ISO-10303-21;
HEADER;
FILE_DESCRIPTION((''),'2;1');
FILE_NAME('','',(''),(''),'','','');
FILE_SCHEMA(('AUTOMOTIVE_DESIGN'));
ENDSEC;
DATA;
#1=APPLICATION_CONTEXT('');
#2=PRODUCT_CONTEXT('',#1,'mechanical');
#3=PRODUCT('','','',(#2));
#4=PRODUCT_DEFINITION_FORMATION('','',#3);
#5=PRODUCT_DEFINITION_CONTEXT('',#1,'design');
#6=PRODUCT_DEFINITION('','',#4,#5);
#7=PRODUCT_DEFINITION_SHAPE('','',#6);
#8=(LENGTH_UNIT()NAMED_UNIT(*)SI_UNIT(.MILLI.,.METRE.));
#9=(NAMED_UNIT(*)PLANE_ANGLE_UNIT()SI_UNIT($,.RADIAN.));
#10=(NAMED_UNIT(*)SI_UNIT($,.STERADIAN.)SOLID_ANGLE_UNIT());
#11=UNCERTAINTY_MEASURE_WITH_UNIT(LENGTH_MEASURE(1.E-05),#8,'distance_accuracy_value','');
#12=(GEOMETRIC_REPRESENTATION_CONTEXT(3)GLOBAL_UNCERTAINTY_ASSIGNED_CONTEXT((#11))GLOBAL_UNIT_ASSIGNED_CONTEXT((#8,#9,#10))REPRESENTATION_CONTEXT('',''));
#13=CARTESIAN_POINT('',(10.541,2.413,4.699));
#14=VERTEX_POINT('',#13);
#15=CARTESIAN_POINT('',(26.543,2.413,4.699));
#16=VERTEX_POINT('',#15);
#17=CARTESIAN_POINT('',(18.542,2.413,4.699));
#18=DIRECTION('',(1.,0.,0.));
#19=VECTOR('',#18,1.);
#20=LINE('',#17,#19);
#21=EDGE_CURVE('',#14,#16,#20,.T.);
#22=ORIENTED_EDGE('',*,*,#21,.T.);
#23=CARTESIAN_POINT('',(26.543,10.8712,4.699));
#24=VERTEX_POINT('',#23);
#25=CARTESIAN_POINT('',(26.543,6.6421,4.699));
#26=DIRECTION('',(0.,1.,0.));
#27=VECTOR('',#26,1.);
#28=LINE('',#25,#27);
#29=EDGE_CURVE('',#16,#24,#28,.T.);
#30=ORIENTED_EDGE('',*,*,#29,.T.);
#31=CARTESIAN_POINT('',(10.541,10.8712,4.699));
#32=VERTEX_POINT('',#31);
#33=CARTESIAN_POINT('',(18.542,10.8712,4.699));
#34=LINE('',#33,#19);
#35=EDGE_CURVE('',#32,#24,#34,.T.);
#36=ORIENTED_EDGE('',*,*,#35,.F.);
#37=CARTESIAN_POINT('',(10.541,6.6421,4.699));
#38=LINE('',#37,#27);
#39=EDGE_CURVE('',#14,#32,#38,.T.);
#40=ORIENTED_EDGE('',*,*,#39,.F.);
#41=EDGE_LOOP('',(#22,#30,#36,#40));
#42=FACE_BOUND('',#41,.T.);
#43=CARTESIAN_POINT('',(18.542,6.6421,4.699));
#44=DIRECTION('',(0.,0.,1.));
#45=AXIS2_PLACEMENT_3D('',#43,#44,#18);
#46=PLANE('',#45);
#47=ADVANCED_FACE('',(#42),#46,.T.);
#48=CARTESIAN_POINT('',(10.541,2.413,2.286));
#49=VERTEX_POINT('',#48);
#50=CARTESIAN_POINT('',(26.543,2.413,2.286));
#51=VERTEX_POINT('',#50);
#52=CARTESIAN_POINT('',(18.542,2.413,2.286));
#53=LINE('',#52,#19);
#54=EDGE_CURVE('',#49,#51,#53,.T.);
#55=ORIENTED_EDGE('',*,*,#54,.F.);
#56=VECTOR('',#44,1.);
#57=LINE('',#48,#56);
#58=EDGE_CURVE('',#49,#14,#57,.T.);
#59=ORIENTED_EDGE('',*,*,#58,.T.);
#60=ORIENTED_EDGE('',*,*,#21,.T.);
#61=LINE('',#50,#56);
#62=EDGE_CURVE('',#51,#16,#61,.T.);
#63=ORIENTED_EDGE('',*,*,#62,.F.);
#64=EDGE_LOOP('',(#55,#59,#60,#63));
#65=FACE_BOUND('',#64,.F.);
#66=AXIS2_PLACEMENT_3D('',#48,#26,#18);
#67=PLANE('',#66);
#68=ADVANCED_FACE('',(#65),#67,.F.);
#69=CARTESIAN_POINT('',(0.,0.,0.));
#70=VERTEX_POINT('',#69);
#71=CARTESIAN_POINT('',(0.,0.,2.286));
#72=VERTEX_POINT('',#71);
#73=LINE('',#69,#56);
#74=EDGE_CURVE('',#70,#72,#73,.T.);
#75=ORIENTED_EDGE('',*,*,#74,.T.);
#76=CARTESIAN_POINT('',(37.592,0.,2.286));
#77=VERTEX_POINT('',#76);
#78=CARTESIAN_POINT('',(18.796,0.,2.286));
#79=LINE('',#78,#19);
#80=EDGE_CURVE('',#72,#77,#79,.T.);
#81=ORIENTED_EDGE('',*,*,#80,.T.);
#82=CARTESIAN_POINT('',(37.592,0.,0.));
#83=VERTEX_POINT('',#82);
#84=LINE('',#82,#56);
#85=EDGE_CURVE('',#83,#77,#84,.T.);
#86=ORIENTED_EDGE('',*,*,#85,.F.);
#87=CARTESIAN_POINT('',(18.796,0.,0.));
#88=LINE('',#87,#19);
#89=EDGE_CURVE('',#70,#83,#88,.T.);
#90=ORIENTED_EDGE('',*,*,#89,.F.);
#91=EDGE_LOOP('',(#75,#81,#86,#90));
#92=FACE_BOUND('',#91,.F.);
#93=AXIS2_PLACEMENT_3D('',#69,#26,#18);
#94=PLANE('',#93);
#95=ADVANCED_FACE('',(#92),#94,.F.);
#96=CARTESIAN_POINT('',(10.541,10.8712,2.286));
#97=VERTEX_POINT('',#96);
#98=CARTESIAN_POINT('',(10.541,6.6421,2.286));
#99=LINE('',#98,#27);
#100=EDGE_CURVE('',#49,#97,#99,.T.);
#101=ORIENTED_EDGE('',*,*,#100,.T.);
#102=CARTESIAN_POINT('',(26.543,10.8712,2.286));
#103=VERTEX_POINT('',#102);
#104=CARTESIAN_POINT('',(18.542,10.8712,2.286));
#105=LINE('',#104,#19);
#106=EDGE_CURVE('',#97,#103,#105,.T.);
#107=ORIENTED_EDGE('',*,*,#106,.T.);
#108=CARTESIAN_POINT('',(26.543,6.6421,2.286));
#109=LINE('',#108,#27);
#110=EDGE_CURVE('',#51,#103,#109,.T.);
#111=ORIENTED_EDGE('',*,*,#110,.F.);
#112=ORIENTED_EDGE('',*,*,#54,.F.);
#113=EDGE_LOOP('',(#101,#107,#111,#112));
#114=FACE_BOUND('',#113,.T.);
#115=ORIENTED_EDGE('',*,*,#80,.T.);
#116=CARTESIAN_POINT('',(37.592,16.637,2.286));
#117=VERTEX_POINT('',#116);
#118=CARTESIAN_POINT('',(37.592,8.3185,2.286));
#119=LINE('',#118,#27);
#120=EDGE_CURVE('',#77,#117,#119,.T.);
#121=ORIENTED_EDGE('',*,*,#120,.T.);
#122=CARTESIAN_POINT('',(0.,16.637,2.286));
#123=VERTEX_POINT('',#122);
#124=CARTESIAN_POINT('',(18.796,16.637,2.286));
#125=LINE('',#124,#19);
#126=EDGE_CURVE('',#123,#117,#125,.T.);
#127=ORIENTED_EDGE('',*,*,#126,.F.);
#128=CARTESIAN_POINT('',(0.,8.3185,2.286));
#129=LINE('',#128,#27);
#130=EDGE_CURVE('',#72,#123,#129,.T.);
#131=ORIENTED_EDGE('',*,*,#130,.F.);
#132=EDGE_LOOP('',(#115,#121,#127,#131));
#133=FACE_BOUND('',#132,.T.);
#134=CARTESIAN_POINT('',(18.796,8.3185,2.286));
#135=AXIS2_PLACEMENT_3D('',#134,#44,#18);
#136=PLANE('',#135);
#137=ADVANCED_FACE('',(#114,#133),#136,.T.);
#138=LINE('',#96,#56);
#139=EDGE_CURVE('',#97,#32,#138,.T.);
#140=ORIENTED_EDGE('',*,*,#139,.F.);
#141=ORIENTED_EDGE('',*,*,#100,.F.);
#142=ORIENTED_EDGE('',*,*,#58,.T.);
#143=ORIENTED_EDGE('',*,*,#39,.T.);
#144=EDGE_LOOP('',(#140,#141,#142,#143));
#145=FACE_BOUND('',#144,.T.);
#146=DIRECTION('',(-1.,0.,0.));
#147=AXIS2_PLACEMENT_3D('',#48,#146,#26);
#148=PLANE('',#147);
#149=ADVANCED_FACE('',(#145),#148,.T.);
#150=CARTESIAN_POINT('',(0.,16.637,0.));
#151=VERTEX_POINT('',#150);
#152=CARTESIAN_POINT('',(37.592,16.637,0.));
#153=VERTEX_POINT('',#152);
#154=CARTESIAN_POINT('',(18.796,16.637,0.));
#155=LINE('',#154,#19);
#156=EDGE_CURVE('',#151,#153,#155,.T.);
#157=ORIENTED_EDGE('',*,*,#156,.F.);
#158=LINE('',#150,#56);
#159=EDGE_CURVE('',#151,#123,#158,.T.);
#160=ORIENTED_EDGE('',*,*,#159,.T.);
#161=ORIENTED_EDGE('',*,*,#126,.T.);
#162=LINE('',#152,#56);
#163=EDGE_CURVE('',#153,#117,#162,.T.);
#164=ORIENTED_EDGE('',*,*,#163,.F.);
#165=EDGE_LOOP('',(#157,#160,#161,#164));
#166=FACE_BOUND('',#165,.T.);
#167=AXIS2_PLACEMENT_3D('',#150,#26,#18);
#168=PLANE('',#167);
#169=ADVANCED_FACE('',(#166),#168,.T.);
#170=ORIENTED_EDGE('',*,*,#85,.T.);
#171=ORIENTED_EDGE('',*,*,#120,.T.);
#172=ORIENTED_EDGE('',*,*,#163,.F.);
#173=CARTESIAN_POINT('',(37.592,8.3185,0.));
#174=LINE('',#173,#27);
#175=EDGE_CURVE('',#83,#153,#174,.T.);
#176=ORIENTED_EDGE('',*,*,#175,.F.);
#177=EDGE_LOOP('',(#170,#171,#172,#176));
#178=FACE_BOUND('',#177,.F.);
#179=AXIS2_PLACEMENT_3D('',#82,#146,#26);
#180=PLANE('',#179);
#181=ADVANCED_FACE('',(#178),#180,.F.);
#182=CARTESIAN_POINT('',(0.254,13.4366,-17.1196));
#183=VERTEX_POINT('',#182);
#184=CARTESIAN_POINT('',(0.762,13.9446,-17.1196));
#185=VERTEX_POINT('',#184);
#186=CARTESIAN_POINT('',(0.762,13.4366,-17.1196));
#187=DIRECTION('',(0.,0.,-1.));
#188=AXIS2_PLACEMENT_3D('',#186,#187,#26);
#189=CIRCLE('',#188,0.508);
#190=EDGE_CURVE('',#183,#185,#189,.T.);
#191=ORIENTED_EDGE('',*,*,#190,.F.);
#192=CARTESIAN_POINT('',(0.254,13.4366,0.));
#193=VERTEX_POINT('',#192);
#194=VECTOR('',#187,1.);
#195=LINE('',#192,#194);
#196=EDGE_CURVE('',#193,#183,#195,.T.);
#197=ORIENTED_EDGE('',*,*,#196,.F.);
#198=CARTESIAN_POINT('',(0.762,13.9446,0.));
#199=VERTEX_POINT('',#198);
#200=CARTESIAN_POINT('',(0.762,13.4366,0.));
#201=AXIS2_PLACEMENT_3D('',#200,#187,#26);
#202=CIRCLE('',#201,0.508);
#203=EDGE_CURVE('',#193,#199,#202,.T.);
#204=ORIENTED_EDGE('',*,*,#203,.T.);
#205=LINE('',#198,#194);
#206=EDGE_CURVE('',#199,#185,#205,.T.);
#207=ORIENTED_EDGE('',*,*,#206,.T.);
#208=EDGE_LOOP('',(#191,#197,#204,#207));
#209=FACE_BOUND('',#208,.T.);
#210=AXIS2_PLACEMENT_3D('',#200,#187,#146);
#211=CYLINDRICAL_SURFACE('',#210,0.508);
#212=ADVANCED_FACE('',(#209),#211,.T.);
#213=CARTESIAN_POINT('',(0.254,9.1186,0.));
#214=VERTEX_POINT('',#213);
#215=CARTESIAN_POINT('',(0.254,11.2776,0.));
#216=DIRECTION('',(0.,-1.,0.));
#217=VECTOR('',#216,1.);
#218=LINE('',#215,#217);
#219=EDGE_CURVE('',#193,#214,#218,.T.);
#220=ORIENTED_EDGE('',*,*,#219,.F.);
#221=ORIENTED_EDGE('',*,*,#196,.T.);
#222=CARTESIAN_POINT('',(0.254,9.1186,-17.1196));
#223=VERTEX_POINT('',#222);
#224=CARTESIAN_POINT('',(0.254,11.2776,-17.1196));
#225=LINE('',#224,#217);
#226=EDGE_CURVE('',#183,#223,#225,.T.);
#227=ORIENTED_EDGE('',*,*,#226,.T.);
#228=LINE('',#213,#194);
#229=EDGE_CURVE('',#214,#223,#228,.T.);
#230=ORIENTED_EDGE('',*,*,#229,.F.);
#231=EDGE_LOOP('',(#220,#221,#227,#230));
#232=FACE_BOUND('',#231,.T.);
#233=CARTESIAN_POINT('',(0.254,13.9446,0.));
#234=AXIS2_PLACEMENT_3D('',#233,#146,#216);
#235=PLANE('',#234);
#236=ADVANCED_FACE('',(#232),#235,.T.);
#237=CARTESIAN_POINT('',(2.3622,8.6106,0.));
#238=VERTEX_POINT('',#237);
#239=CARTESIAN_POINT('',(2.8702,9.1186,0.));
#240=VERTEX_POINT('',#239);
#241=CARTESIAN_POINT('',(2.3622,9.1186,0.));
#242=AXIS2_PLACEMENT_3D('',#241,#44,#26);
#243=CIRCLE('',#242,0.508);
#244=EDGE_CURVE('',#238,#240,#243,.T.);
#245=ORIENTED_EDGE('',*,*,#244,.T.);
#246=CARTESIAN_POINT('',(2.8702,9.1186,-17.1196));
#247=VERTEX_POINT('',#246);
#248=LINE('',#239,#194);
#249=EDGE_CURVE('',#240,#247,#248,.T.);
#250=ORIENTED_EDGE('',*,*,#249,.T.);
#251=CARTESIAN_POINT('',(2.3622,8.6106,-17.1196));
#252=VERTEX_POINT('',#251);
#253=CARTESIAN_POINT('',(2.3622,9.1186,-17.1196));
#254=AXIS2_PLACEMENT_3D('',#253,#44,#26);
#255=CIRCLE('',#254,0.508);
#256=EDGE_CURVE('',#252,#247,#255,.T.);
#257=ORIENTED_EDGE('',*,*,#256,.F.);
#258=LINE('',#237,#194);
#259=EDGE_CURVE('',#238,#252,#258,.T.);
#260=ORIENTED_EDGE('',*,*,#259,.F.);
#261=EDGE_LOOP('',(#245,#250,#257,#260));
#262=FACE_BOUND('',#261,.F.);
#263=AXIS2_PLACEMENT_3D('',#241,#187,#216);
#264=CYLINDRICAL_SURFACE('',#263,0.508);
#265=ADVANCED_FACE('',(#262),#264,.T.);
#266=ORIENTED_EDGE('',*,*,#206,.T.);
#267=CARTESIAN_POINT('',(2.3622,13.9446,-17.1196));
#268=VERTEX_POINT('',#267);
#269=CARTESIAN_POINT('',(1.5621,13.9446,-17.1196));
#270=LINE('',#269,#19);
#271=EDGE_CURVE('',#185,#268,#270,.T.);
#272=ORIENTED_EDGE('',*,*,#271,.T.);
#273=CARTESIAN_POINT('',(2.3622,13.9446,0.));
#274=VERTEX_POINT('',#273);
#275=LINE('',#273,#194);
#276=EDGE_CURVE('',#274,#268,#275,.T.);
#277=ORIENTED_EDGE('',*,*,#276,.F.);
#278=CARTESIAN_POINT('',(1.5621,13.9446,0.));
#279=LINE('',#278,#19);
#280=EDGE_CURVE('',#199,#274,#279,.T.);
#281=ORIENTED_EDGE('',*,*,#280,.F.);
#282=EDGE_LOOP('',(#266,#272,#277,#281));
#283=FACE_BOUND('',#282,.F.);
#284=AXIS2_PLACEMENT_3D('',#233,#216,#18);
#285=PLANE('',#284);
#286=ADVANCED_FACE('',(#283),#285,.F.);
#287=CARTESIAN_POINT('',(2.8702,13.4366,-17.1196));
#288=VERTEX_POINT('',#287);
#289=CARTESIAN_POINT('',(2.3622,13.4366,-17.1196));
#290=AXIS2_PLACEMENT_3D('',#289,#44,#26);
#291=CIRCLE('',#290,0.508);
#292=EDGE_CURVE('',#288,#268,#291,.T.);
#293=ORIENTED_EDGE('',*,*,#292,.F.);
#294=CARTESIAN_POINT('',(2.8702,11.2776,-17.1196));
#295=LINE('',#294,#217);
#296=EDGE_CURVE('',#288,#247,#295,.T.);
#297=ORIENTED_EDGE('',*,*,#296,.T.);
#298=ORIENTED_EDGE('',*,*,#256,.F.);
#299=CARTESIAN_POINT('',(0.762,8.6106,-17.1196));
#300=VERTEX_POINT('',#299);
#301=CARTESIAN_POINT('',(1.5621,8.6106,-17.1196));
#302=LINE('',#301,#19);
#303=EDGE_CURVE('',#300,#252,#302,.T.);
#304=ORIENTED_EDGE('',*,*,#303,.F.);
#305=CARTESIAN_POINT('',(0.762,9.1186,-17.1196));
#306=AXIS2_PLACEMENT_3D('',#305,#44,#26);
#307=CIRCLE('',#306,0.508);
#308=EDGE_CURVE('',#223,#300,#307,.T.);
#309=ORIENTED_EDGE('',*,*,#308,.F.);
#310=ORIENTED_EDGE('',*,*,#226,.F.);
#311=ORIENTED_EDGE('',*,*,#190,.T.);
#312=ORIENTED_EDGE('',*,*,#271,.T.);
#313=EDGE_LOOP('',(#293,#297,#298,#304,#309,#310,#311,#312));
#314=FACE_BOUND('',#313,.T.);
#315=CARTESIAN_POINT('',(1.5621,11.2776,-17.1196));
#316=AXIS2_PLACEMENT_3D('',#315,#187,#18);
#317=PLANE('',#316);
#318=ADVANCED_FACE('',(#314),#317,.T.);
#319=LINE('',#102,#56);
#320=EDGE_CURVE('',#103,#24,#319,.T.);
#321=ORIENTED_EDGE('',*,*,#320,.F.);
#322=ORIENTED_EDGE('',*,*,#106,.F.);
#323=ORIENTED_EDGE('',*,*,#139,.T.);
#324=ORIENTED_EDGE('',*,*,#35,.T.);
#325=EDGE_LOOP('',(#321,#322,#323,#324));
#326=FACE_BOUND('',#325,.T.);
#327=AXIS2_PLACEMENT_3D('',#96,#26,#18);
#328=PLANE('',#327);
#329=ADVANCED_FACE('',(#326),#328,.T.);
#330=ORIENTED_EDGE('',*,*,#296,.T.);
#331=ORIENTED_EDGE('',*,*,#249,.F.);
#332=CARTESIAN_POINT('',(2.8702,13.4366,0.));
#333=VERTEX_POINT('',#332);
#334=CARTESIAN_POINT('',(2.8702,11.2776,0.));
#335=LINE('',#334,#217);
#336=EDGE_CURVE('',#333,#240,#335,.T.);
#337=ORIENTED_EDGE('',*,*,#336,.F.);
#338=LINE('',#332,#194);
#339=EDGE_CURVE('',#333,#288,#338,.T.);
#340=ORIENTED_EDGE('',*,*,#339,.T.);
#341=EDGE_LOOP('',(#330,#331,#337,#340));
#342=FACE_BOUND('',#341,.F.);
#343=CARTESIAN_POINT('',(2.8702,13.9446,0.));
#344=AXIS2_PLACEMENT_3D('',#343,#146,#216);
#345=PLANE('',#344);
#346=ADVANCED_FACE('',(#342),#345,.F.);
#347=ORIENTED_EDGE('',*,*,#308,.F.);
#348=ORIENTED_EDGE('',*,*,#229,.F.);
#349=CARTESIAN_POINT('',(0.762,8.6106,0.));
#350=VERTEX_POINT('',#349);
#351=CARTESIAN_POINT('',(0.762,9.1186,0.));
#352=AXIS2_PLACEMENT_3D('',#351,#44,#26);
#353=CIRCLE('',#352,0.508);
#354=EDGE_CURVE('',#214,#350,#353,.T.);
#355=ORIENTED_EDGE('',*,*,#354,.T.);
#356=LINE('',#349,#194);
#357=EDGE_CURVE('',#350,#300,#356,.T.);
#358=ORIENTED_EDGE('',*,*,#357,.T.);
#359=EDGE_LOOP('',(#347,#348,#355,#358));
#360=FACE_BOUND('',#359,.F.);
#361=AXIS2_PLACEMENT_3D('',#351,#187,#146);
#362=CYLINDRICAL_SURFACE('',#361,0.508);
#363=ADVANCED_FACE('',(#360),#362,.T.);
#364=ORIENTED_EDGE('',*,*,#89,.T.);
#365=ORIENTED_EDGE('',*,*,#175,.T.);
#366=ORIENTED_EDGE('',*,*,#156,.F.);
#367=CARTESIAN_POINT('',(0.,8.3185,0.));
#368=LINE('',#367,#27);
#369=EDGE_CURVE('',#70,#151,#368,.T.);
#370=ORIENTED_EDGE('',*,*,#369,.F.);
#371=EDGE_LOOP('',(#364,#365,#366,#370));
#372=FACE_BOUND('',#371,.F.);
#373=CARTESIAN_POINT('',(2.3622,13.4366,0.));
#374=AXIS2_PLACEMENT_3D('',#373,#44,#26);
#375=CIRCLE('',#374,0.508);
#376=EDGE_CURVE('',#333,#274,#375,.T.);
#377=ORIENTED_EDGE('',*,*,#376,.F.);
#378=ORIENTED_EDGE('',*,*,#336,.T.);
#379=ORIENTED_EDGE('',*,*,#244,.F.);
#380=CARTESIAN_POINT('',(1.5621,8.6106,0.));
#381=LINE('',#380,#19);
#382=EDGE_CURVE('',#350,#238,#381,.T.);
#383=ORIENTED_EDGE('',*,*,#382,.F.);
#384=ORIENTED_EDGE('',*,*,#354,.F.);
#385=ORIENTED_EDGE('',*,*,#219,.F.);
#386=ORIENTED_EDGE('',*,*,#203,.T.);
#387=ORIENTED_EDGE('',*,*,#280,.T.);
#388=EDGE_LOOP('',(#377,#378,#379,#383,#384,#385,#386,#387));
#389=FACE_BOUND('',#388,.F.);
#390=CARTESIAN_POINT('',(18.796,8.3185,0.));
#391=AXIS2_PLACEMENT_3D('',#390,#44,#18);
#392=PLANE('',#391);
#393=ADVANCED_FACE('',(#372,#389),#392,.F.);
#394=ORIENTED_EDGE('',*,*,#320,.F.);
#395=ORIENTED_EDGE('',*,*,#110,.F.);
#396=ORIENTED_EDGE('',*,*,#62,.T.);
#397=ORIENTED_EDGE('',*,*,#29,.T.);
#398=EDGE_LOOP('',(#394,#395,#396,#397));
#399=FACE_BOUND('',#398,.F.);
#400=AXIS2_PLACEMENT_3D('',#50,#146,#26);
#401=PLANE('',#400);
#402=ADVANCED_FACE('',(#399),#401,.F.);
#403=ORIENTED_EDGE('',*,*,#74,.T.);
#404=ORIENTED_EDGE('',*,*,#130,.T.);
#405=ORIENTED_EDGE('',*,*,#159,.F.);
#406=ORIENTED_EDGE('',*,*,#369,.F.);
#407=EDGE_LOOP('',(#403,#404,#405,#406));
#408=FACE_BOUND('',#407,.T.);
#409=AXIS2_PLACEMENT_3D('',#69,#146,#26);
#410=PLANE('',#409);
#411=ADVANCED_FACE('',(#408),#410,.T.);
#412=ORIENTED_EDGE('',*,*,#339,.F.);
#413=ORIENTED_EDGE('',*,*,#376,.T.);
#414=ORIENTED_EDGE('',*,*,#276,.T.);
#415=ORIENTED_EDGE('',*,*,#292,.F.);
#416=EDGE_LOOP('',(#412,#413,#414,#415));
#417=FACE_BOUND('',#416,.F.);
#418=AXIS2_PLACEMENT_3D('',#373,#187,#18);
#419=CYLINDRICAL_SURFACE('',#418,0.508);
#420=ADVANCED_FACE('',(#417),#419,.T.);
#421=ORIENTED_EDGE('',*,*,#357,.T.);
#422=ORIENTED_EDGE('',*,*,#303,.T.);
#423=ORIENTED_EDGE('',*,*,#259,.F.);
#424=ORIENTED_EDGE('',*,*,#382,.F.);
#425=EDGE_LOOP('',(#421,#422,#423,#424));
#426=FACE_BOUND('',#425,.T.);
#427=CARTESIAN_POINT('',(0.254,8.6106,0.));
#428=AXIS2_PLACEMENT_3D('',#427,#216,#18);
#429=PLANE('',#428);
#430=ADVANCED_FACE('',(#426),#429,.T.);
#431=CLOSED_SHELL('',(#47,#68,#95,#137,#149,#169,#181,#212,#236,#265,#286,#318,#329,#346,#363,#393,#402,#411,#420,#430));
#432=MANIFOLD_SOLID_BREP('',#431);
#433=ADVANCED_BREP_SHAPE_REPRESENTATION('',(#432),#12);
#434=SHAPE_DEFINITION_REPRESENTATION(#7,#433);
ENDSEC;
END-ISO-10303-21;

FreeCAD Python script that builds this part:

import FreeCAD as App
import Part
import Sketcher
from FreeCAD import Vector
Q = App.Units.Quantity


def edges_at(feature, points):
    """Names of the edges that pass closest to the given points."""
    edges = feature.Shape.Edges
    near = lambda p: min(range(len(edges)), key=lambda i: edges[i].distToShape(Part.Vertex(*p))[0])
    return sorted({f"Edge{near(p) + 1}" for p in points})

doc = App.newDocument("Part")
body = doc.addObject("PartDesign::Body", "Body")

# Sketch on XY plane
sketch1 = body.newObject("Sketcher::SketchObject", "Sketch")
sketch1.AttachmentSupport = (doc.getObject("XY_Plane"), [""])
sketch1.MapMode = "FlatFace"
sketch1.addGeometry(Part.LineSegment(Vector(0, 17, 0), Vector(0, 0, 0)), False)
sketch1.addGeometry(Part.LineSegment(Vector(0, 0, 0), Vector(38, 0, 0)), False)
sketch1.addGeometry(Part.LineSegment(Vector(38, 0, 0), Vector(38, 17, 0)), False)
sketch1.addGeometry(Part.LineSegment(Vector(38, 17, 0), Vector(0, 17, 0)), False)
sketch1.addConstraint(Sketcher.Constraint("Coincident", 0, 2, 1, 1))
sketch1.addConstraint(Sketcher.Constraint("Coincident", 1, 2, 2, 1))
sketch1.addConstraint(Sketcher.Constraint("Coincident", 2, 2, 3, 1))
sketch1.addConstraint(Sketcher.Constraint("Coincident", 3, 2, 0, 1))
sketch1.addConstraint(Sketcher.Constraint("Vertical", 0))
sketch1.addConstraint(Sketcher.Constraint("Horizontal", 1))
sketch1.addConstraint(Sketcher.Constraint("Vertical", 2))
sketch1.addConstraint(Sketcher.Constraint("Horizontal", 3))
sketch1.addConstraint(Sketcher.Constraint("Coincident", 0, 2, -1, 1))
sketch1.addConstraint(Sketcher.Constraint("DistanceX", 1, 1, 1, 2, Q("1.48 in")))
sketch1.addConstraint(Sketcher.Constraint("DistanceY", 0, 2, 0, 1, Q("0.655 in")))
pad1 = body.newObject("PartDesign::Pad", "Pad")
pad1.Profile = sketch1
pad1.Length = Q("0.09 in")

# Sketch on XY plane
sketch2 = body.newObject("Sketcher::SketchObject", "Sketch001")
sketch2.AttachmentSupport = (doc.getObject("XY_Plane"), [""])
sketch2.MapMode = "FlatFace"
sketch2.AttachmentOffset = App.Placement(Vector(0, 0, 0.09 * 25.4), App.Rotation())
sketch2.addGeometry(Part.LineSegment(Vector(11, 11, 0), Vector(11, 2, 0)), False)
sketch2.addGeometry(Part.LineSegment(Vector(11, 2, 0), Vector(27, 2, 0)), False)
sketch2.addGeometry(Part.LineSegment(Vector(27, 2, 0), Vector(27, 11, 0)), False)
sketch2.addGeometry(Part.LineSegment(Vector(27, 11, 0), Vector(11, 11, 0)), False)
sketch2.addConstraint(Sketcher.Constraint("Coincident", 0, 2, 1, 1))
sketch2.addConstraint(Sketcher.Constraint("Coincident", 1, 2, 2, 1))
sketch2.addConstraint(Sketcher.Constraint("Coincident", 2, 2, 3, 1))
sketch2.addConstraint(Sketcher.Constraint("Coincident", 3, 2, 0, 1))
sketch2.addConstraint(Sketcher.Constraint("Vertical", 0))
sketch2.addConstraint(Sketcher.Constraint("Horizontal", 1))
sketch2.addConstraint(Sketcher.Constraint("Vertical", 2))
sketch2.addConstraint(Sketcher.Constraint("Horizontal", 3))
sketch2.addConstraint(Sketcher.Constraint("DistanceX", 1, 1, 1, 2, Q("0.63 in")))
sketch2.addConstraint(Sketcher.Constraint("DistanceY", 0, 2, 0, 1, Q("0.333 in")))
sketch2.addConstraint(Sketcher.Constraint("DistanceX", -1, 1, 0, 2, Q("0.415 in")))
sketch2.addConstraint(Sketcher.Constraint("DistanceY", -1, 1, 0, 2, Q("0.095 in")))
pad2 = body.newObject("PartDesign::Pad", "Pad001")
pad2.Profile = sketch2
pad2.Length = Q("0.095 in")

# Sketch on XY plane
sketch3 = body.newObject("Sketcher::SketchObject", "Sketch002")
sketch3.AttachmentSupport = (doc.getObject("XY_Plane"), [""])
sketch3.MapMode = "FlatFace"
sketch3.addGeometry(Part.LineSegment(Vector(0.3, 8.6, 0), Vector(0.3, 13.9, 0)), False)
sketch3.addGeometry(Part.LineSegment(Vector(0.3, 13.9, 0), Vector(2.9, 13.9, 0)), False)
sketch3.addGeometry(Part.LineSegment(Vector(2.9, 13.9, 0), Vector(2.9, 8.6, 0)), False)
sketch3.addGeometry(Part.LineSegment(Vector(2.9, 8.6, 0), Vector(0.3, 8.6, 0)), False)
sketch3.addConstraint(Sketcher.Constraint("Coincident", 0, 2, 1, 1))
sketch3.addConstraint(Sketcher.Constraint("Coincident", 1, 2, 2, 1))
sketch3.addConstraint(Sketcher.Constraint("Coincident", 2, 2, 3, 1))
sketch3.addConstraint(Sketcher.Constraint("Coincident", 3, 2, 0, 1))
sketch3.addConstraint(Sketcher.Constraint("Vertical", 0))
sketch3.addConstraint(Sketcher.Constraint("Horizontal", 1))
sketch3.addConstraint(Sketcher.Constraint("Vertical", 2))
sketch3.addConstraint(Sketcher.Constraint("Horizontal", 3))
sketch3.addConstraint(Sketcher.Constraint("DistanceY", 0, 1, 0, 2, Q("0.21 in")))
sketch3.addConstraint(Sketcher.Constraint("DistanceX", 1, 1, 1, 2, Q("0.103 in")))
sketch3.addConstraint(Sketcher.Constraint("DistanceX", -1, 1, 0, 2, Q("0.01 in")))
sketch3.addConstraint(Sketcher.Constraint("DistanceY", -1, 1, 0, 2, Q("0.549 in")))
pad3 = body.newObject("PartDesign::Pad", "Pad002")
pad3.Profile = sketch3
pad3.Length = Q("0.674 in")
pad3.Reversed = True
doc.recompute()

fillet = body.newObject("PartDesign::Fillet", "Fillet")
fillet.Base = (pad3, edges_at(pad3, [
    (2.87, 13.945, -8.56),
    (0.254, 13.945, -8.56),
    (2.87, 8.611, -8.56),
    (0.254, 8.611, -8.56),
]))
fillet.Radius = Q("0.02 in")

doc.recompute()
